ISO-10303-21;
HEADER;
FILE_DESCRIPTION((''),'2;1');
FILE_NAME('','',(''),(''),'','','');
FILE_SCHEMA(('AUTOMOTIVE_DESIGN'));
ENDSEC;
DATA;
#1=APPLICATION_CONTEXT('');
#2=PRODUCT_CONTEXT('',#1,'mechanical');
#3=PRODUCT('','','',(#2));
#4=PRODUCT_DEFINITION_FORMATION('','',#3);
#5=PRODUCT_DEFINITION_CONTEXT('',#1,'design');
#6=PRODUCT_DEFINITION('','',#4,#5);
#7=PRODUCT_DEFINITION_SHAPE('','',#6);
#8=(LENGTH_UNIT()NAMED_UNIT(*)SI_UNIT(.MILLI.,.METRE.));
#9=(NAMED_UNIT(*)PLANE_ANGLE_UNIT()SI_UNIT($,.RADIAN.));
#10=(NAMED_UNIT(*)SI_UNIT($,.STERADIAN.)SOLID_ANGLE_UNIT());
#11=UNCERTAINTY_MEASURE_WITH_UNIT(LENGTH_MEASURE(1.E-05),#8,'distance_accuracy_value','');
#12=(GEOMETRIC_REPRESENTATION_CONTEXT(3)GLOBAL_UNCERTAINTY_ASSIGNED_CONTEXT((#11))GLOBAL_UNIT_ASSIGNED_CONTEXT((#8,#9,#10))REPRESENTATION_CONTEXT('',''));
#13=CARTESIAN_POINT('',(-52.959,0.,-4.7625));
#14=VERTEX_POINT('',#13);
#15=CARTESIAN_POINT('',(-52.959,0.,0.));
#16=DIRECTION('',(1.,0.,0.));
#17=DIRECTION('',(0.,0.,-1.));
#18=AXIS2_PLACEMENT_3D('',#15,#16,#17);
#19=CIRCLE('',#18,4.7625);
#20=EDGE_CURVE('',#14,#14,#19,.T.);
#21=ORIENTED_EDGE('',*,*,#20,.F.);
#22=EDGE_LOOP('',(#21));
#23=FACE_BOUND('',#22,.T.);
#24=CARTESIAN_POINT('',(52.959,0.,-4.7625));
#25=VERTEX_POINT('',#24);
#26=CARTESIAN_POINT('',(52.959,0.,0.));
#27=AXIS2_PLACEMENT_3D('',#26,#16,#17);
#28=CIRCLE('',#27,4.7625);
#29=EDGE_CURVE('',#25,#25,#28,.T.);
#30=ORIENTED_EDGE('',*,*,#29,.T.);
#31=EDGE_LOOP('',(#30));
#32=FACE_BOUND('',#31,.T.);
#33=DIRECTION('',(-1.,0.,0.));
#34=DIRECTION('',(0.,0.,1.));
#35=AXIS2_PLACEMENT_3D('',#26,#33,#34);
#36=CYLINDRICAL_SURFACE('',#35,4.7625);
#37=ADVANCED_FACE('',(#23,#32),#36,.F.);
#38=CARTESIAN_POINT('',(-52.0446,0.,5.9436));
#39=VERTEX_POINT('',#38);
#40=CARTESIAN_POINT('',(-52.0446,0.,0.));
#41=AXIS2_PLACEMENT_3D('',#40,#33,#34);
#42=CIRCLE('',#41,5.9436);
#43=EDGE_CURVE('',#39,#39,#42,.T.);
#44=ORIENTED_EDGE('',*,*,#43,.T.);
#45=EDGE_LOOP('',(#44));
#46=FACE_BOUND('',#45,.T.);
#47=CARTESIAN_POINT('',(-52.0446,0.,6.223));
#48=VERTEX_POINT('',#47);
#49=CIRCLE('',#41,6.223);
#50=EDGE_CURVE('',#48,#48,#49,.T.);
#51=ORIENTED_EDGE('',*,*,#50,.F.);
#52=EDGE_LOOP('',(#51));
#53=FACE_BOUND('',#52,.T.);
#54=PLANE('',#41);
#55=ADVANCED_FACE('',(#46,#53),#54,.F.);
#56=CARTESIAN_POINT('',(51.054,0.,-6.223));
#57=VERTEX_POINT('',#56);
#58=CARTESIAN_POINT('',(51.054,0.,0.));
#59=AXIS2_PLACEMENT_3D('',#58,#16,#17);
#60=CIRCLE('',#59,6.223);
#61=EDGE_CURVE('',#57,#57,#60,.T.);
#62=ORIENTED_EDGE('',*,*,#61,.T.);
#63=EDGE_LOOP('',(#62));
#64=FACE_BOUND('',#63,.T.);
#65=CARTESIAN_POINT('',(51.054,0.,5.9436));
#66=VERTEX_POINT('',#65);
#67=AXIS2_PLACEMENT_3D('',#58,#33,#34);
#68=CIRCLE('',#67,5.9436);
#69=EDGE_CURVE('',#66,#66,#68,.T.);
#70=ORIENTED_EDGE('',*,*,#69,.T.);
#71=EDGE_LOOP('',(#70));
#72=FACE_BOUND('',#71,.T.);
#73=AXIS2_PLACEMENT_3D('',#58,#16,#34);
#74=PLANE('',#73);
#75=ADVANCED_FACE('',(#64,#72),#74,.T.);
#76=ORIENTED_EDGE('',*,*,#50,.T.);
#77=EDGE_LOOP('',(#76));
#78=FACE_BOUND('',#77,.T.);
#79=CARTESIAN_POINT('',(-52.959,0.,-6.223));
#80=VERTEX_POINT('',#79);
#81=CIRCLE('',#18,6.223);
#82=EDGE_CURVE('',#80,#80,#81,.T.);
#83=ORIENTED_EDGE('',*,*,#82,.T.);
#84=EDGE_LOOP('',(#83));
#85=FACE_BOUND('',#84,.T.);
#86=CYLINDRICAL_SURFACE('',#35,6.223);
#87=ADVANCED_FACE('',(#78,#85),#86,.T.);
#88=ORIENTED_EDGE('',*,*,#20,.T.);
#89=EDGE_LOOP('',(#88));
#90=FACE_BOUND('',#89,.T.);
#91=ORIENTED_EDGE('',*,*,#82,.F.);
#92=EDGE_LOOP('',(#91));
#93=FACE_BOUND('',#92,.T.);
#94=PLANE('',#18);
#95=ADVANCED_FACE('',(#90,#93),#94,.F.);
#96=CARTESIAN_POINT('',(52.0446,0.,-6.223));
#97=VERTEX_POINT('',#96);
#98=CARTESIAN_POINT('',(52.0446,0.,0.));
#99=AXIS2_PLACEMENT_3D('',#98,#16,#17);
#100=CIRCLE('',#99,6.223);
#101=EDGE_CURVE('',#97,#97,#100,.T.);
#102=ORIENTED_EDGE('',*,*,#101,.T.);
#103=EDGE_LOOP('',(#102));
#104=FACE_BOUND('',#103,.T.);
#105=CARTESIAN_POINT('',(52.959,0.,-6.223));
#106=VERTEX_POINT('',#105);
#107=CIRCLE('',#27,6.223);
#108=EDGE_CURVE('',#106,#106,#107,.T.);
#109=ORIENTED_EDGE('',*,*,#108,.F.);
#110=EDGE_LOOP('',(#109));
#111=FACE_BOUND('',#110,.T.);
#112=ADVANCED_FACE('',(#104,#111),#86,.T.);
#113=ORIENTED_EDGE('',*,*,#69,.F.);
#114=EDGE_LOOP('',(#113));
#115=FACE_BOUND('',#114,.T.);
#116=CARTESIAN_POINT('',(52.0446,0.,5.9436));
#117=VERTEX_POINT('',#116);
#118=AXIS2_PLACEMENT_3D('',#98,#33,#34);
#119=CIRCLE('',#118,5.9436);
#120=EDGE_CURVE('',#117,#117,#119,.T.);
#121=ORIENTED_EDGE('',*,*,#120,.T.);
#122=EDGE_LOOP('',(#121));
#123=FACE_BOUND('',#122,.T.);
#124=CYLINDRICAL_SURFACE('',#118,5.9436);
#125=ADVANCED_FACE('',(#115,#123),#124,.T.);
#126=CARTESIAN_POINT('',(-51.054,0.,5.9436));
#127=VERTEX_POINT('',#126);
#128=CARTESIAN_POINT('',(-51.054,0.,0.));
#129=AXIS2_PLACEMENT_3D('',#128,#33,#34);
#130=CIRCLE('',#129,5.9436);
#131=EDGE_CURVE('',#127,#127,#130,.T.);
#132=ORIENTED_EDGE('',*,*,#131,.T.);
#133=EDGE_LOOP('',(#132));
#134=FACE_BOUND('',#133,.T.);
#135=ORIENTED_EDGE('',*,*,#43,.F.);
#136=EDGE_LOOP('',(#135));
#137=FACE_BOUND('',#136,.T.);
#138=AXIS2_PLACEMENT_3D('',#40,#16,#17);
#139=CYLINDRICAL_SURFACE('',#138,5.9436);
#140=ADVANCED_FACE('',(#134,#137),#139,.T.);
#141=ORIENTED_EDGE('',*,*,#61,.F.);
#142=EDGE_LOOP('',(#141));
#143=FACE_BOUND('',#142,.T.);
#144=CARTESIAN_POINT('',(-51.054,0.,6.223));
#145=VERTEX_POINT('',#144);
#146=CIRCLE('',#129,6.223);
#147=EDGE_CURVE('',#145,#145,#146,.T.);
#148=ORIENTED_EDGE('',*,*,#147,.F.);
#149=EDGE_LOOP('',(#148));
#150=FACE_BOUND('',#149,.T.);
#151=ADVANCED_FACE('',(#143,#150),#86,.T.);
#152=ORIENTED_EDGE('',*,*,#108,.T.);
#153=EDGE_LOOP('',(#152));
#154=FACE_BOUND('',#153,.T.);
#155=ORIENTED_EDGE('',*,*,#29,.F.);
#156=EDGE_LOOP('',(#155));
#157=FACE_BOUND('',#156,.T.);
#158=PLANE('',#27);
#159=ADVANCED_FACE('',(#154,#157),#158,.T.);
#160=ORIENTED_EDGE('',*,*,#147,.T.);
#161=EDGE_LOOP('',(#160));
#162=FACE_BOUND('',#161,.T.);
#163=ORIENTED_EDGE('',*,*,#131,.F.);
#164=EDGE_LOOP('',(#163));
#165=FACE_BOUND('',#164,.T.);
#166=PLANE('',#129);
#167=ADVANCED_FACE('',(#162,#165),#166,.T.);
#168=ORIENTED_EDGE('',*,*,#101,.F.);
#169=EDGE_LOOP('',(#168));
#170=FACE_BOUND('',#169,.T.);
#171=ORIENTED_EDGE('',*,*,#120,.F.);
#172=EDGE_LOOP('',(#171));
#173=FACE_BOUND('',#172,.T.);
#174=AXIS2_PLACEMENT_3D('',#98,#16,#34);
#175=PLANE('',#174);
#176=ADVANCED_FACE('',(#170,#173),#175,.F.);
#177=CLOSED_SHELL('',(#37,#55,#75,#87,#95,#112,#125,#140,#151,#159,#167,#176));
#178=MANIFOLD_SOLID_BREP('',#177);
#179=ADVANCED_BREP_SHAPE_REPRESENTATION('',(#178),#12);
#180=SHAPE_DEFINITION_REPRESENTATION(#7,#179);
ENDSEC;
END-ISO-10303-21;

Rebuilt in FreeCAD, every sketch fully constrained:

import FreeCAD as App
import Part
import Sketcher

V = App.Vector
Q = App.Units.Quantity

doc = App.newDocument("Part")
body = doc.addObject("PartDesign::Body", "Body")

# Sketch on YZ plane
sketch1 = doc.addObject("Sketcher::SketchObject", "Sketch")
body.addObject(sketch1)
sketch1.AttachmentSupport = (doc.YZ_Plane, [""])
sketch1.MapMode = "FlatFace"
sketch1.addGeometry([
    Part.Circle(V(0, 0, 0), V(0, 0, 1), 6.2),
    Part.Circle(V(0, 0, 0), V(0, 0, 1), 4.8),
], False)
sketch1.addConstraint([
    Sketcher.Constraint("Coincident", 0, 3, -1, 1),
    Sketcher.Constraint("Coincident", 1, 3, -1, 1),
    Sketcher.Constraint("Diameter", 0, Q("0.49 in")),
    Sketcher.Constraint("Diameter", 1, Q("0.375 in")),
])
pad1 = doc.addObject("PartDesign::Pad", "Pad")
body.addObject(pad1)
pad1.Profile = sketch1
pad1.Length = Q("4.17 in")
pad1.Midplane = True

# Sketch on YZ plane
sketch2 = doc.addObject("Sketcher::SketchObject", "Sketch001")
body.addObject(sketch2)
sketch2.AttachmentSupport = (doc.YZ_Plane, [""])
sketch2.MapMode = "FlatFace"
sketch2.AttachmentOffset = App.Placement(V(0, 0, -2.01 * 25.4), App.Rotation())
sketch2.addGeometry([
    Part.Circle(V(0, 0, 0), V(0, 0, 1), 6),
    Part.Circle(V(0, 0, 0), V(0, 0, 1), 6),
], False)
sketch2.addConstraint([
    Sketcher.Constraint("Coincident", 0, 3, -1, 1),
    Sketcher.Constraint("Coincident", 1, 3, -1, 1),
    Sketcher.Constraint("Diameter", 0, Q("0.5 in")),
    Sketcher.Constraint("Diameter", 1, Q("0.468 in")),
])
pocket1 = doc.addObject("PartDesign::Pocket", "Pocket")
body.addObject(pocket1)
pocket1.Profile = sketch2
pocket1.Length = Q("0.039 in")
doc.recompute()

mirrored = doc.addObject("PartDesign::Mirrored", "Mirrored")
body.addObject(mirrored)
mirrored.Originals = [pocket1]
mirrored.MirrorPlane = (doc.YZ_Plane, [""])
body.Tip = mirrored

doc.recompute()
